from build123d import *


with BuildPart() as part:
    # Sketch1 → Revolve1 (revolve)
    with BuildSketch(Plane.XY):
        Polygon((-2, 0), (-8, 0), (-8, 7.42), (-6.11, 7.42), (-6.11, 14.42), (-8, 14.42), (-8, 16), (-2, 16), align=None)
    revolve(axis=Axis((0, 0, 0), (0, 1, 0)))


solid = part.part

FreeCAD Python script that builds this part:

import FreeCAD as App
import Part
import Sketcher
Q = App.Units.Quantity

doc = App.newDocument("Part")
params = doc.addObject("Spreadsheet::Sheet", "Params")
for row, (alias, value) in enumerate([
    ("sketch1_width", "6 mm"),
    ("sketch1_height", "16 mm"),
    ("sketch1_height2", "7 mm"),
    ("sketch1_width2", "1.89 mm"),
    ("sketch1_height3", "1.58 mm"),
    ("revolution_angle", "360 deg"),
], start=1):
    params.set(f"A{row}", alias)
    params.set(f"B{row}", "=" + value)
    params.setAlias(f"B{row}", alias)

body = doc.addObject("PartDesign::Body", "Body")

# Sketch on XY plane
sketch1 = doc.addObject("Sketcher::SketchObject", "Sketch")
body.addObject(sketch1)
sketch1.AttachmentSupport = (doc.XY_Plane, [""])
sketch1.MapMode = "FlatFace"
sketch1.addGeometry(Part.LineSegment(App.Vector(-8, 0, 0), App.Vector(-2, 0, 0)), False)
sketch1.addGeometry(Part.LineSegment(App.Vector(-2, 0, 0), App.Vector(-2, 16, 0)), False)
sketch1.addGeometry(Part.LineSegment(App.Vector(-2, 16, 0), App.Vector(-8, 16, 0)), False)
sketch1.addGeometry(Part.LineSegment(App.Vector(-8, 16, 0), App.Vector(-8, 14.4, 0)), False)
sketch1.addGeometry(Part.LineSegment(App.Vector(-8, 14.4, 0), App.Vector(-6.1, 14.4, 0)), False)
sketch1.addGeometry(Part.LineSegment(App.Vector(-6.1, 14.4, 0), App.Vector(-6.1, 7.4, 0)), False)
sketch1.addGeometry(Part.LineSegment(App.Vector(-6.1, 7.4, 0), App.Vector(-8, 7.4, 0)), False)
sketch1.addGeometry(Part.LineSegment(App.Vector(-8, 7.4, 0), App.Vector(-8, 0, 0)), False)
sketch1.addConstraint(Sketcher.Constraint("Coincident", 0, 2, 1, 1))
sketch1.addConstraint(Sketcher.Constraint("Coincident", 1, 2, 2, 1))
sketch1.addConstraint(Sketcher.Constraint("Coincident", 2, 2, 3, 1))
sketch1.addConstraint(Sketcher.Constraint("Coincident", 3, 2, 4, 1))
sketch1.addConstraint(Sketcher.Constraint("Coincident", 4, 2, 5, 1))
sketch1.addConstraint(Sketcher.Constraint("Coincident", 5, 2, 6, 1))
sketch1.addConstraint(Sketcher.Constraint("Coincident", 6, 2, 7, 1))
sketch1.addConstraint(Sketcher.Constraint("Coincident", 7, 2, 0, 1))
sketch1.addConstraint(Sketcher.Constraint("Horizontal", 0))
sketch1.addConstraint(Sketcher.Constraint("Vertical", 1))
sketch1.addConstraint(Sketcher.Constraint("Horizontal", 2))
sketch1.addConstraint(Sketcher.Constraint("Vertical", 3))
sketch1.addConstraint(Sketcher.Constraint("Horizontal", 4))
sketch1.addConstraint(Sketcher.Constraint("Vertical", 5))
sketch1.addConstraint(Sketcher.Constraint("Horizontal", 6))
sketch1.addConstraint(Sketcher.Constraint("Vertical", 7))
sketch1.addConstraint(Sketcher.Constraint("PointOnObject", 0, 2, -1))
sketch1.addConstraint(Sketcher.Constraint("Vertical", 3, 2, 6, 2))
sketch1.addConstraint(Sketcher.Constraint("DistanceX", 0, 1, 0, 2, Q("6 mm")))
sketch1.addConstraint(Sketcher.Constraint("DistanceY", 1, 1, 1, 2, Q("16 mm")))
sketch1.addConstraint(Sketcher.Constraint("DistanceY", 5, 2, 5, 1, Q("7 mm")))
sketch1.addConstraint(Sketcher.Constraint("DistanceX", 0, 2, -1, 1, Q("2 mm")))
sketch1.addConstraint(Sketcher.Constraint("DistanceX", 4, 1, 4, 2, Q("1.89 mm")))
sketch1.addConstraint(Sketcher.Constraint("DistanceY", 3, 2, 3, 1, Q("1.58 mm")))
sketch1.setExpression("Constraints[18]", "Params.sketch1_width")
sketch1.setExpression("Constraints[19]", "Params.sketch1_height")
sketch1.setExpression("Constraints[20]", "Params.sketch1_height2")
sketch1.setExpression("Constraints[22]", "Params.sketch1_width2")
sketch1.setExpression("Constraints[23]", "Params.sketch1_height3")
revolution = doc.addObject("PartDesign::Revolution", "Revolution")
body.addObject(revolution)
revolution.Profile = sketch1
revolution.ReferenceAxis = (sketch1, ["V_Axis"])
revolution.setExpression("Angle", "Params.revolution_angle")

doc.recompute()
